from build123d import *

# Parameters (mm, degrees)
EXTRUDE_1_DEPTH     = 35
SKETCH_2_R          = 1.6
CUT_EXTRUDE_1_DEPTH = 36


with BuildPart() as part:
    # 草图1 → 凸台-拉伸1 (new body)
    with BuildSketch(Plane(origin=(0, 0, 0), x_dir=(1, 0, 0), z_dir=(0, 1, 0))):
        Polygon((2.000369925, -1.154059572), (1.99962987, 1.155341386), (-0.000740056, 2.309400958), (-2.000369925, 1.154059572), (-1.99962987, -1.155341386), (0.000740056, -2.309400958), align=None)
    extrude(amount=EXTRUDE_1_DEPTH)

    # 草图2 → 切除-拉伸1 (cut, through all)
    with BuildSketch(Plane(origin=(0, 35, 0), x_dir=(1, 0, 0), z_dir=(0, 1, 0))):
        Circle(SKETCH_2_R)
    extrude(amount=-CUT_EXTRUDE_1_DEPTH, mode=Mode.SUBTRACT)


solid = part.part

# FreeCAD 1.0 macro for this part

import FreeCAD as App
import Part
import Sketcher
from FreeCAD import Vector
Q = App.Units.Quantity


def add_polygon(sketch, points):
    """Adds a closed chain of lines whose ends are joined by coincident constraints."""
    first, n = sketch.GeometryCount, len(points)
    for a, b in zip(points, points[1:] + points[:1]):
        sketch.addGeometry(Part.LineSegment(App.Vector(*a, 0), App.Vector(*b, 0)), False)
    for i in range(n):
        sketch.addConstraint(Sketcher.Constraint("Coincident", first + i, 2, first + (i + 1) % n, 1))

doc = App.newDocument("Part")
body = doc.addObject("PartDesign::Body", "Body")

# Sketch on XZ plane
sketch1 = doc.addObject("Sketcher::SketchObject", "Sketch")
body.addObject(sketch1)
sketch1.AttachmentSupport = (doc.XZ_Plane, [""])
sketch1.MapMode = "FlatFace"
add_polygon(sketch1, [(2, 1.2), (2, -1.2), (0, -2.3), (-2, -1.2), (-2, 1.2), (0, 2.3)])  # lines 0-5
sketch1.addConstraint([
    Sketcher.Constraint("Symmetric", 0, 2, 3, 2, -1, 1),
    Sketcher.Constraint("Symmetric", 1, 2, 4, 2, -1, 1),
    Sketcher.Constraint("Symmetric", 2, 2, 5, 2, -1, 1),
    Sketcher.Constraint("Equal", 0, 1),
    Sketcher.Constraint("Equal", 1, 2),
    Sketcher.Constraint("DistanceX", 2, 2, 0, 2, Q("4 mm")),
    Sketcher.Constraint("Distance", 0, Q("2.309401 mm")),
    Sketcher.Constraint("DistanceX", -1, 1, 0, 2, Q("1.99963 mm")),
    Sketcher.Constraint("DistanceY", 0, 2, -1, 1, Q("1.155341 mm")),
])
pad1 = doc.addObject("PartDesign::Pad", "Pad")
body.addObject(pad1)
pad1.Profile = sketch1
pad1.Length = 35
pad1.Reversed = True

# Sketch on XZ plane
sketch2 = doc.addObject("Sketcher::SketchObject", "Sketch001")
body.addObject(sketch2)
sketch2.AttachmentSupport = (doc.XZ_Plane, [""])
sketch2.MapMode = "FlatFace"
sketch2.AttachmentOffset = App.Placement(Vector(0, 0, -35), App.Rotation())
sketch2.addGeometry(Part.Circle(Vector(0, 0, 0), Vector(0, 0, 1), 1.6), False)
sketch2.addConstraint([
    Sketcher.Constraint("Coincident", 0, 3, -1, 1),
    Sketcher.Constraint("Diameter", 0, Q("3.2 mm")),
])
pocket1 = doc.addObject("PartDesign::Pocket", "Pocket")
body.addObject(pocket1)
pocket1.Profile = sketch2
pocket1.Type = "ThroughAll"
pocket1.Reversed = True

doc.recompute()
